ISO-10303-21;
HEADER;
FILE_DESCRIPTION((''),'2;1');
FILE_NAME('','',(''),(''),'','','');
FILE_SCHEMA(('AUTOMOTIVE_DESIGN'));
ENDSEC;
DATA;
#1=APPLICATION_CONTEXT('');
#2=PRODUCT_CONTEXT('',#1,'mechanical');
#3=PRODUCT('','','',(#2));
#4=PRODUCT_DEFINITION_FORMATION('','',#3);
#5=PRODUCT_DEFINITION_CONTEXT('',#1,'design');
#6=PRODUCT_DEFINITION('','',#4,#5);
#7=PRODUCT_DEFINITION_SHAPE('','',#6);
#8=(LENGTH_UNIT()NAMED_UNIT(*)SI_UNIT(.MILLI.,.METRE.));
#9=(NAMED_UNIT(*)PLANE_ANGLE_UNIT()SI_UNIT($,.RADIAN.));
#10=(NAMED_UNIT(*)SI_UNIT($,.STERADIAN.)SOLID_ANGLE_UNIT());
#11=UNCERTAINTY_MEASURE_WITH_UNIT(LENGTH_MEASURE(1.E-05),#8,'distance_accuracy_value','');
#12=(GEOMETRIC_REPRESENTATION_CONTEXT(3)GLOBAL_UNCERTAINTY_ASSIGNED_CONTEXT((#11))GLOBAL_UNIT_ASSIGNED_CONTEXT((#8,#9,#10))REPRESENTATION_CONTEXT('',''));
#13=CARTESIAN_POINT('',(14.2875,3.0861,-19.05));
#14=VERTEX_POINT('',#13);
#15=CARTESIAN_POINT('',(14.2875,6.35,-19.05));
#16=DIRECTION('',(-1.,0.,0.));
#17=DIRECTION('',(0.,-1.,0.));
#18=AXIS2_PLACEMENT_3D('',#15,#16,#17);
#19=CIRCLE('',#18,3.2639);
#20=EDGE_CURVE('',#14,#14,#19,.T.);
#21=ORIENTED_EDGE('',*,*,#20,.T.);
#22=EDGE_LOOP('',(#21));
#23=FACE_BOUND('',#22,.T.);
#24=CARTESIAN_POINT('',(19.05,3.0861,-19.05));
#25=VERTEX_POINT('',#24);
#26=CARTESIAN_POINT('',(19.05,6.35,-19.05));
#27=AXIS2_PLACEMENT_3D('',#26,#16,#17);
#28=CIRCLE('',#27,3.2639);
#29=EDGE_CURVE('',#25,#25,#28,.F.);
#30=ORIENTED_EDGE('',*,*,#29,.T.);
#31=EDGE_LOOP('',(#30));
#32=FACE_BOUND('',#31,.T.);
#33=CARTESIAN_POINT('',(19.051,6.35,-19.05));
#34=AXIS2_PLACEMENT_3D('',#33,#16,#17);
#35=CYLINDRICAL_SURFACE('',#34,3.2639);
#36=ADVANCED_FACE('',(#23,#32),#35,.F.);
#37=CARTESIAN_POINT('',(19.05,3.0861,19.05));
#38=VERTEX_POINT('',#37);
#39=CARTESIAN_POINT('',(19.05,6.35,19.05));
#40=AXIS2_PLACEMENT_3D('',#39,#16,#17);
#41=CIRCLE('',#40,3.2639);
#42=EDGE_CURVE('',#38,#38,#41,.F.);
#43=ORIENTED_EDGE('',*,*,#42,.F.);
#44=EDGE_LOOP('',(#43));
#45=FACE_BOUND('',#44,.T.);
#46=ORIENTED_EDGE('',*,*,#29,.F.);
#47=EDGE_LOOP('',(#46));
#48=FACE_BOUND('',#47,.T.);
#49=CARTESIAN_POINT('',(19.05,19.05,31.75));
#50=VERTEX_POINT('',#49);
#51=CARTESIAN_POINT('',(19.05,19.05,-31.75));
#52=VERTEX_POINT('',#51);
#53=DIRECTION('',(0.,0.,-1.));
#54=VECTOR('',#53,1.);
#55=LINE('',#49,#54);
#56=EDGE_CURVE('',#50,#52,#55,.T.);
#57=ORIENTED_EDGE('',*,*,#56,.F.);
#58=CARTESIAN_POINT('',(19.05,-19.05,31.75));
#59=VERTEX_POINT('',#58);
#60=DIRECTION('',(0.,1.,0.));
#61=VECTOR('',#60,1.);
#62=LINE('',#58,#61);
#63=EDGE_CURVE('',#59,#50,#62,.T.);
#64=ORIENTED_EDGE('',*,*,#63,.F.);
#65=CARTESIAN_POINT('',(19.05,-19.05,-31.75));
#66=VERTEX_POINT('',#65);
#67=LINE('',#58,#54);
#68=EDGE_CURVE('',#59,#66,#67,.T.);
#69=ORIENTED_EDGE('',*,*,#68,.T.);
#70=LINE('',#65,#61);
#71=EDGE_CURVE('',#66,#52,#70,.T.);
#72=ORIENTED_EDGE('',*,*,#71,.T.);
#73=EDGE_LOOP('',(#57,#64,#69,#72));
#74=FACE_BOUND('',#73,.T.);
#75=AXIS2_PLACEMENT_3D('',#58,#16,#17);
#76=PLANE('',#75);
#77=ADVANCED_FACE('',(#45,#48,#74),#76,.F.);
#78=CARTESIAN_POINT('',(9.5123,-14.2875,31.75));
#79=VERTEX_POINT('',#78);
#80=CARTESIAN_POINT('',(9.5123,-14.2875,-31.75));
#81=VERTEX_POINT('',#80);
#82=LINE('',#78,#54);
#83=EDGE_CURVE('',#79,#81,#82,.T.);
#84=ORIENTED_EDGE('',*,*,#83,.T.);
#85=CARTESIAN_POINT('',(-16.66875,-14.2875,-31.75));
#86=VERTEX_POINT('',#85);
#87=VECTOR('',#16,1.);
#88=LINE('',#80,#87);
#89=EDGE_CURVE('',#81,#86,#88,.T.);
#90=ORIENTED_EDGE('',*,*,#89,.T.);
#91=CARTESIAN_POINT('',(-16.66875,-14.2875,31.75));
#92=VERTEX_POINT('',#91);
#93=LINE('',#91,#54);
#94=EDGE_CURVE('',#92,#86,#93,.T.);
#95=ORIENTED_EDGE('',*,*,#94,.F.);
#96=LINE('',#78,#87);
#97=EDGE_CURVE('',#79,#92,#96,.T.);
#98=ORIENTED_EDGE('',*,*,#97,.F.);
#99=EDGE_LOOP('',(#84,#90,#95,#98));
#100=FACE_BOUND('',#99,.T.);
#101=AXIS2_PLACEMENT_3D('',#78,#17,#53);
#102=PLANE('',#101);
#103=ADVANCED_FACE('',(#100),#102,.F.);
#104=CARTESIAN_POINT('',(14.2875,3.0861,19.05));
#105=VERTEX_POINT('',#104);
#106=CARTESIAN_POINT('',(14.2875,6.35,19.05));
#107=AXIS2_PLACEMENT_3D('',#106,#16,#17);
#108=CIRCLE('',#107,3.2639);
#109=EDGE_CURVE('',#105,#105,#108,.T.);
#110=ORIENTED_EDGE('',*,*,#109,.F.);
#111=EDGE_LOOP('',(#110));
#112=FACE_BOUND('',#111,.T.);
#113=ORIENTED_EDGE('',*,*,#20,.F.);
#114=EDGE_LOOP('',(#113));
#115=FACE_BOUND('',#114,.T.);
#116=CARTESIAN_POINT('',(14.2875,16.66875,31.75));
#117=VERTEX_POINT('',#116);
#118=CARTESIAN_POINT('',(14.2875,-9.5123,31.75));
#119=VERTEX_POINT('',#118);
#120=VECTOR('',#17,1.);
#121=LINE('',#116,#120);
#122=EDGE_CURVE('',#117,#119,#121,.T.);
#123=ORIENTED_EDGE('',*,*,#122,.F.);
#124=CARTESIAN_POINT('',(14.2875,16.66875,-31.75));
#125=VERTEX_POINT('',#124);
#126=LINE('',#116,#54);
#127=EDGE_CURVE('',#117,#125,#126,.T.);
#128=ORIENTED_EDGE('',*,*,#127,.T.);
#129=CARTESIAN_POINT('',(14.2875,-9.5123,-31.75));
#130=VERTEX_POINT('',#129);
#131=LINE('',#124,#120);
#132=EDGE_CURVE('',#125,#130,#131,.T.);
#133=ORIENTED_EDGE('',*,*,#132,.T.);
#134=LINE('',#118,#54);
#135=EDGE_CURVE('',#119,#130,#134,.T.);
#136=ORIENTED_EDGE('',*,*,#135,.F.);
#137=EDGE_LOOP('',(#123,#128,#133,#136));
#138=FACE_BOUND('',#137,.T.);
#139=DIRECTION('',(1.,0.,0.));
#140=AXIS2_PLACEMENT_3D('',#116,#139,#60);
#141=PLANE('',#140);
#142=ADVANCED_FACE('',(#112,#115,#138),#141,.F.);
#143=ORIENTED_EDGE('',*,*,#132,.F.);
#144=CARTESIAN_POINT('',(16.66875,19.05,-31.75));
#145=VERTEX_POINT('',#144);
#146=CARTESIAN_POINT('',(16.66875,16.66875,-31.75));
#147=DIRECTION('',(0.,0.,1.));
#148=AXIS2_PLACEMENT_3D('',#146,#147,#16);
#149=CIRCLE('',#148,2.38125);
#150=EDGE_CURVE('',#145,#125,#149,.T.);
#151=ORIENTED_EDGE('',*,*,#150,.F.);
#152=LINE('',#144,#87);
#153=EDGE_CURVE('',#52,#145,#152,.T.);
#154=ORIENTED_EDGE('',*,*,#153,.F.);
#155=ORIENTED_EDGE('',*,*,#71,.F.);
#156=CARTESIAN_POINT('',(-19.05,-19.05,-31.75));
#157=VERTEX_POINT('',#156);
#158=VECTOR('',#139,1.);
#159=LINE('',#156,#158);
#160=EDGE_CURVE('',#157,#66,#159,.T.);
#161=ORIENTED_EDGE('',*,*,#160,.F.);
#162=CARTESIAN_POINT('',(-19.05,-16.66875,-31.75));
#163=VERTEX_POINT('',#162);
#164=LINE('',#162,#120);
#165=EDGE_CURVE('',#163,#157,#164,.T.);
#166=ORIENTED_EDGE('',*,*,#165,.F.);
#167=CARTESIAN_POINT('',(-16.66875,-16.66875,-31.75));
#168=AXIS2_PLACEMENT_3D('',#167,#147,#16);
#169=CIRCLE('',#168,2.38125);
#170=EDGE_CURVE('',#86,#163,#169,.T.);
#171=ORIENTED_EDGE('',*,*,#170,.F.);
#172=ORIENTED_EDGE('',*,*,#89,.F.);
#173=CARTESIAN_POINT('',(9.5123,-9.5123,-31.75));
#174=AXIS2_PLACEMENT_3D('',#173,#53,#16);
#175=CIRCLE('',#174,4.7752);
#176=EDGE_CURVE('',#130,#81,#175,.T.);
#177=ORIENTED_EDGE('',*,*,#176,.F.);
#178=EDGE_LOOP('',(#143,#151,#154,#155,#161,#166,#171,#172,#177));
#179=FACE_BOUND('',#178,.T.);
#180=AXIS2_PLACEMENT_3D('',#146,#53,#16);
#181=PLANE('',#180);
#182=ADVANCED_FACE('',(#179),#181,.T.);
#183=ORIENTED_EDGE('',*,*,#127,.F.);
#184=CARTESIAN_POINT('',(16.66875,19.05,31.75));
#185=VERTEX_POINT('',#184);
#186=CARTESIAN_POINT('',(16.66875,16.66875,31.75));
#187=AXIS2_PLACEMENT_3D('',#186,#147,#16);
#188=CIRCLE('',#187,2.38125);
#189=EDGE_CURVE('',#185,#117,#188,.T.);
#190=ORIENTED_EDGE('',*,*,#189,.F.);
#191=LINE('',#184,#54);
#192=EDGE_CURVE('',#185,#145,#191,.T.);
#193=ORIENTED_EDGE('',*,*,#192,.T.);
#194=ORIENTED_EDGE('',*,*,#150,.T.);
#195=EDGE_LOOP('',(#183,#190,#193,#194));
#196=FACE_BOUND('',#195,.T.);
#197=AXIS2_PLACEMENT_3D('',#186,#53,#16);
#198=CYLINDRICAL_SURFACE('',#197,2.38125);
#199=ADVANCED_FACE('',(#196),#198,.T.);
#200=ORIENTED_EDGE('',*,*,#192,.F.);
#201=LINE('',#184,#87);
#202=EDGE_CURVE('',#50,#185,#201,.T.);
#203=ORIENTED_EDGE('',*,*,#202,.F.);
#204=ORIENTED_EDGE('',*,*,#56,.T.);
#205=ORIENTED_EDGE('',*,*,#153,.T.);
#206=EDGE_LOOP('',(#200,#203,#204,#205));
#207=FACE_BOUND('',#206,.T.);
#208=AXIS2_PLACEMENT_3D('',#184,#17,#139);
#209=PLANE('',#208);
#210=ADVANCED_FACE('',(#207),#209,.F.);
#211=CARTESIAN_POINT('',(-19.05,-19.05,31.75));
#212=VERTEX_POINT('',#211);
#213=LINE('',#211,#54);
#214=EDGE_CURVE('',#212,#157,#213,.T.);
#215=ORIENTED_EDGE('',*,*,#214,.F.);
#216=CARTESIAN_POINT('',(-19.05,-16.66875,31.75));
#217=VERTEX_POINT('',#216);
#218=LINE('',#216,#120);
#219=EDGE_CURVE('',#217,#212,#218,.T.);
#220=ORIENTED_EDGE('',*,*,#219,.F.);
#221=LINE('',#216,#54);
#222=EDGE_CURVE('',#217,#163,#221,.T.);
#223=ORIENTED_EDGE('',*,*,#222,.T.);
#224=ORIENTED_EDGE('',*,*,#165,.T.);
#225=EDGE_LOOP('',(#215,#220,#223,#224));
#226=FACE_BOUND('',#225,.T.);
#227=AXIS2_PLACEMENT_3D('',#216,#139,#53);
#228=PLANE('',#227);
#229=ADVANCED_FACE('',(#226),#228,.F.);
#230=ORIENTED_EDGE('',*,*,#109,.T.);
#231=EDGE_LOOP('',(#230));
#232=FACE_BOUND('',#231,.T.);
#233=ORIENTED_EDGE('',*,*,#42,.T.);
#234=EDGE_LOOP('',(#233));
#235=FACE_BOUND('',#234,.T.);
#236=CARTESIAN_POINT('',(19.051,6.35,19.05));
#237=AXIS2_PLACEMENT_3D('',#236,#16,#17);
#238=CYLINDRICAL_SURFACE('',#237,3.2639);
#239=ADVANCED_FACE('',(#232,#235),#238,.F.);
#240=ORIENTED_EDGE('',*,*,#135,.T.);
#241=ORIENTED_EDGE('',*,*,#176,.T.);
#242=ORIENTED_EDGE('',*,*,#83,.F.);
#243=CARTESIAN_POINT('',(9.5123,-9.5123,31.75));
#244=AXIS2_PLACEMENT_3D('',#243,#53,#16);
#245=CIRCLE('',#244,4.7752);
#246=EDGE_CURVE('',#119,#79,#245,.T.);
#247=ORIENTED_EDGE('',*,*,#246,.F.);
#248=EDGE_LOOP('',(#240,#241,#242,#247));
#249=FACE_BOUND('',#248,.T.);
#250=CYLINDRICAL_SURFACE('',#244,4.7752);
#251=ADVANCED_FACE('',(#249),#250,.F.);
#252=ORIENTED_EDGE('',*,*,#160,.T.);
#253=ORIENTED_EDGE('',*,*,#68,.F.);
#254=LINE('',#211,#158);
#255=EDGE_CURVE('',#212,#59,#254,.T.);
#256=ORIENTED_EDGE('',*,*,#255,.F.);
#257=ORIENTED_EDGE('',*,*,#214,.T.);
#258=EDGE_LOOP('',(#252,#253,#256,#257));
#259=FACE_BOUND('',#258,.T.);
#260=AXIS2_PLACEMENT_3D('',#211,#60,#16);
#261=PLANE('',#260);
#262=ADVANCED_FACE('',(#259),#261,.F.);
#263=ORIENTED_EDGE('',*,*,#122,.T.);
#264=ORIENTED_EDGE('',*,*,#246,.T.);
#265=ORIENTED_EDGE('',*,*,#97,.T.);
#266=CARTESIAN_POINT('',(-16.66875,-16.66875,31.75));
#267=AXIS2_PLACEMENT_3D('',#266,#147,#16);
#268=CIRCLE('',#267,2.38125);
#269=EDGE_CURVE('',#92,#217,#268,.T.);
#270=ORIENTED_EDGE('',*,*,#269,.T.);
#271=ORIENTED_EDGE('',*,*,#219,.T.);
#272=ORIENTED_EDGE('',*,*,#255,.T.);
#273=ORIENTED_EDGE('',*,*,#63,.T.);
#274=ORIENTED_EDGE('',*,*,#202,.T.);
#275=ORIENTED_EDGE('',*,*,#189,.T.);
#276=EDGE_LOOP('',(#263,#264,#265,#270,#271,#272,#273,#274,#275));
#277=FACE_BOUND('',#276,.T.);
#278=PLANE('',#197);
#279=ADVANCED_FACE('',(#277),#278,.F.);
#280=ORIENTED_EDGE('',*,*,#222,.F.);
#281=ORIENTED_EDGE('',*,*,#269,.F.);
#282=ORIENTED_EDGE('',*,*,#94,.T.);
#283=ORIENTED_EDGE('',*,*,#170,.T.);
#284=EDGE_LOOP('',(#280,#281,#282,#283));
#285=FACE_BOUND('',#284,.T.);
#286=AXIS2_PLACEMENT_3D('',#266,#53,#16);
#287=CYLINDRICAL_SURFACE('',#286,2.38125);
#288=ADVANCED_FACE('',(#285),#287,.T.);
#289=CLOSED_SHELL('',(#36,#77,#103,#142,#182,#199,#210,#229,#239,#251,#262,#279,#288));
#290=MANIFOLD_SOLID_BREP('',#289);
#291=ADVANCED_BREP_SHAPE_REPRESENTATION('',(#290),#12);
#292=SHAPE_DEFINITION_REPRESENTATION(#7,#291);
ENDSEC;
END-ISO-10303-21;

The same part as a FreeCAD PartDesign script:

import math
import FreeCAD as App
import Part
import Sketcher
Q = App.Units.Quantity

doc = App.newDocument("Part")
body = doc.addObject("PartDesign::Body", "Body")

# Sketch on XY plane
sketch1 = body.newObject("Sketcher::SketchObject", "Sketch")
sketch1.AttachmentSupport = (doc.getObject("XY_Plane"), [""])
sketch1.MapMode = "FlatFace"
sketch1.addGeometry(Part.LineSegment(App.Vector(-19.1, -19.1, 0), App.Vector(19.1, -19.1, 0)), False)
sketch1.addGeometry(Part.LineSegment(App.Vector(19.1, -19.1, 0), App.Vector(19.1, 19.1, 0)), False)
sketch1.addGeometry(Part.LineSegment(App.Vector(19.1, 19.1, 0), App.Vector(16.7, 19.1, 0)), False)
sketch1.addGeometry(Part.ArcOfCircle(Part.Circle(App.Vector(16.7, 16.7, 0), App.Vector(0, 0, 1), 2.4), math.radians(90), math.radians(180)), False)
sketch1.addGeometry(Part.LineSegment(App.Vector(14.3, 16.7, 0), App.Vector(14.3, -9.5, 0)), False)
sketch1.addGeometry(Part.ArcOfCircle(Part.Circle(App.Vector(9.5, -9.5, 0), App.Vector(0, 0, 1), 4.8), math.radians(-90), math.radians(0)), False)
sketch1.addGeometry(Part.LineSegment(App.Vector(9.5, -14.3, 0), App.Vector(-16.7, -14.3, 0)), False)
sketch1.addGeometry(Part.ArcOfCircle(Part.Circle(App.Vector(-16.7, -16.7, 0), App.Vector(0, 0, 1), 2.4), math.radians(90), math.radians(180)), False)
sketch1.addGeometry(Part.LineSegment(App.Vector(-19.1, -16.7, 0), App.Vector(-19.1, -19.1, 0)), False)
sketch1.addConstraint(Sketcher.Constraint("Coincident", 0, 2, 1, 1))
sketch1.addConstraint(Sketcher.Constraint("Coincident", 1, 2, 2, 1))
sketch1.addConstraint(Sketcher.Constraint("Tangent", 2, 2, 3, 1))
sketch1.addConstraint(Sketcher.Constraint("Tangent", 3, 2, 4, 1))
sketch1.addConstraint(Sketcher.Constraint("Tangent", 4, 2, 5, 2))
sketch1.addConstraint(Sketcher.Constraint("Tangent", 5, 1, 6, 1))
sketch1.addConstraint(Sketcher.Constraint("Tangent", 6, 2, 7, 1))
sketch1.addConstraint(Sketcher.Constraint("Tangent", 7, 2, 8, 1))
sketch1.addConstraint(Sketcher.Constraint("Coincident", 8, 2, 0, 1))
sketch1.addConstraint(Sketcher.Constraint("Horizontal", 0))
sketch1.addConstraint(Sketcher.Constraint("Vertical", 1))
sketch1.addConstraint(Sketcher.Constraint("Horizontal", 2))
sketch1.addConstraint(Sketcher.Constraint("Vertical", 4))
sketch1.addConstraint(Sketcher.Constraint("Horizontal", 6))
sketch1.addConstraint(Sketcher.Constraint("Vertical", 8))
sketch1.addConstraint(Sketcher.Constraint("Equal", 3, 7))
sketch1.addConstraint(Sketcher.Constraint("Symmetric", 3, 3, 7, 3, -1, 1))
sketch1.addConstraint(Sketcher.Constraint("Symmetric", 1, 2, 8, 2, -1, 1))
sketch1.addConstraint(Sketcher.Constraint("Equal", 0, 1))
sketch1.addConstraint(Sketcher.Constraint("DistanceX", 0, 1, 0, 2, Q("1.5 in")))
sketch1.addConstraint(Sketcher.Constraint("Radius", 3, Q("0.09375 in")))
sketch1.addConstraint(Sketcher.Constraint("Radius", 5, Q("0.188 in")))
pad1 = body.newObject("PartDesign::Pad", "Pad")
pad1.Profile = sketch1
pad1.Length = Q("2.5 in")
pad1.Midplane = True

# Sketch on YZ plane
sketch2 = body.newObject("Sketcher::SketchObject", "Sketch001")
sketch2.AttachmentSupport = (doc.getObject("YZ_Plane"), [""])
sketch2.MapMode = "FlatFace"
sketch2.AttachmentOffset = App.Placement(App.Vector(0, 0, 0.5625 * 25.4), App.Rotation())
sketch2.addGeometry(Part.Circle(App.Vector(6.3, -19.1, 0), App.Vector(0, 0, 1), 3.3), False)
sketch2.addConstraint(Sketcher.Constraint("Diameter", 0, Q("0.257 in")))
sketch2.addConstraint(Sketcher.Constraint("DistanceX", -1, 1, 0, 3, Q("0.25 in")))
sketch2.addConstraint(Sketcher.Constraint("DistanceY", 0, 3, -1, 1, Q("0.75 in")))
pocket1 = body.newObject("PartDesign::Pocket", "Pocket")
pocket1.Profile = sketch2
pocket1.Type = "UpToFirst"
pocket1.Reversed = True

# Sketch on YZ plane
sketch3 = body.newObject("Sketcher::SketchObject", "Sketch002")
sketch3.AttachmentSupport = (doc.getObject("YZ_Plane"), [""])
sketch3.MapMode = "FlatFace"
sketch3.AttachmentOffset = App.Placement(App.Vector(0, 0, 0.5625 * 25.4), App.Rotation())
sketch3.addGeometry(Part.Circle(App.Vector(6.3, 19.1, 0), App.Vector(0, 0, 1), 3.3), False)
sketch3.addConstraint(Sketcher.Constraint("Diameter", 0, Q("0.257 in")))
sketch3.addConstraint(Sketcher.Constraint("DistanceX", -1, 1, 0, 3, Q("0.25 in")))
sketch3.addConstraint(Sketcher.Constraint("DistanceY", -1, 1, 0, 3, Q("0.75 in")))
pocket2 = body.newObject("PartDesign::Pocket", "Pocket001")
pocket2.Profile = sketch3
pocket2.Type = "UpToFirst"
pocket2.Reversed = True

doc.recompute()
